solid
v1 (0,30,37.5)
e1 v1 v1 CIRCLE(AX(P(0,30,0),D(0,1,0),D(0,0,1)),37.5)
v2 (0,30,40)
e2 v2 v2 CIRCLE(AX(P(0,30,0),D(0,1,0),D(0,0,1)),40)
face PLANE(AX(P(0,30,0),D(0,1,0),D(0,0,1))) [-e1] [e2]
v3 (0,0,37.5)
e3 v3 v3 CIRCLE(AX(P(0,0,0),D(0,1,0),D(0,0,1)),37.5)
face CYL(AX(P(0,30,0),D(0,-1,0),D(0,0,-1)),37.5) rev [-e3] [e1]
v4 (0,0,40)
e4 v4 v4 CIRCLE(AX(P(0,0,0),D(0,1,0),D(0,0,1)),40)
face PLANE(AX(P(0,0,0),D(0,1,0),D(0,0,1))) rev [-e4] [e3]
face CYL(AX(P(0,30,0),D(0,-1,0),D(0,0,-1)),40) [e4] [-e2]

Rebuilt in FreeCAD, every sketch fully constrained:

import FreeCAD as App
import Part
import Sketcher

V = App.Vector

doc = App.newDocument("Part")
body = doc.addObject("PartDesign::Body", "Body")

# Sketch on XZ plane
sketch1 = doc.addObject("Sketcher::SketchObject", "Sketch")
body.addObject(sketch1)
sketch1.AttachmentSupport = (doc.XZ_Plane, [""])
sketch1.MapMode = "FlatFace"
sketch1.addGeometry([
    Part.Circle(V(0, 0, 0), V(0, 0, 1), 40),
    Part.Circle(V(0, 0, 0), V(0, 0, 1), 38),
], False)
sketch1.addConstraint([
    Sketcher.Constraint("Coincident", 0, 3, -1, 1),
    Sketcher.Constraint("Coincident", 1, 3, -1, 1),
    Sketcher.Constraint("Diameter", 0, 80.0),
    Sketcher.Constraint("Diameter", 1, 75.0),
])
pad1 = doc.addObject("PartDesign::Pad", "Pad")
body.addObject(pad1)
pad1.Profile = sketch1
pad1.Length = 30
pad1.Reversed = True

doc.recompute()
